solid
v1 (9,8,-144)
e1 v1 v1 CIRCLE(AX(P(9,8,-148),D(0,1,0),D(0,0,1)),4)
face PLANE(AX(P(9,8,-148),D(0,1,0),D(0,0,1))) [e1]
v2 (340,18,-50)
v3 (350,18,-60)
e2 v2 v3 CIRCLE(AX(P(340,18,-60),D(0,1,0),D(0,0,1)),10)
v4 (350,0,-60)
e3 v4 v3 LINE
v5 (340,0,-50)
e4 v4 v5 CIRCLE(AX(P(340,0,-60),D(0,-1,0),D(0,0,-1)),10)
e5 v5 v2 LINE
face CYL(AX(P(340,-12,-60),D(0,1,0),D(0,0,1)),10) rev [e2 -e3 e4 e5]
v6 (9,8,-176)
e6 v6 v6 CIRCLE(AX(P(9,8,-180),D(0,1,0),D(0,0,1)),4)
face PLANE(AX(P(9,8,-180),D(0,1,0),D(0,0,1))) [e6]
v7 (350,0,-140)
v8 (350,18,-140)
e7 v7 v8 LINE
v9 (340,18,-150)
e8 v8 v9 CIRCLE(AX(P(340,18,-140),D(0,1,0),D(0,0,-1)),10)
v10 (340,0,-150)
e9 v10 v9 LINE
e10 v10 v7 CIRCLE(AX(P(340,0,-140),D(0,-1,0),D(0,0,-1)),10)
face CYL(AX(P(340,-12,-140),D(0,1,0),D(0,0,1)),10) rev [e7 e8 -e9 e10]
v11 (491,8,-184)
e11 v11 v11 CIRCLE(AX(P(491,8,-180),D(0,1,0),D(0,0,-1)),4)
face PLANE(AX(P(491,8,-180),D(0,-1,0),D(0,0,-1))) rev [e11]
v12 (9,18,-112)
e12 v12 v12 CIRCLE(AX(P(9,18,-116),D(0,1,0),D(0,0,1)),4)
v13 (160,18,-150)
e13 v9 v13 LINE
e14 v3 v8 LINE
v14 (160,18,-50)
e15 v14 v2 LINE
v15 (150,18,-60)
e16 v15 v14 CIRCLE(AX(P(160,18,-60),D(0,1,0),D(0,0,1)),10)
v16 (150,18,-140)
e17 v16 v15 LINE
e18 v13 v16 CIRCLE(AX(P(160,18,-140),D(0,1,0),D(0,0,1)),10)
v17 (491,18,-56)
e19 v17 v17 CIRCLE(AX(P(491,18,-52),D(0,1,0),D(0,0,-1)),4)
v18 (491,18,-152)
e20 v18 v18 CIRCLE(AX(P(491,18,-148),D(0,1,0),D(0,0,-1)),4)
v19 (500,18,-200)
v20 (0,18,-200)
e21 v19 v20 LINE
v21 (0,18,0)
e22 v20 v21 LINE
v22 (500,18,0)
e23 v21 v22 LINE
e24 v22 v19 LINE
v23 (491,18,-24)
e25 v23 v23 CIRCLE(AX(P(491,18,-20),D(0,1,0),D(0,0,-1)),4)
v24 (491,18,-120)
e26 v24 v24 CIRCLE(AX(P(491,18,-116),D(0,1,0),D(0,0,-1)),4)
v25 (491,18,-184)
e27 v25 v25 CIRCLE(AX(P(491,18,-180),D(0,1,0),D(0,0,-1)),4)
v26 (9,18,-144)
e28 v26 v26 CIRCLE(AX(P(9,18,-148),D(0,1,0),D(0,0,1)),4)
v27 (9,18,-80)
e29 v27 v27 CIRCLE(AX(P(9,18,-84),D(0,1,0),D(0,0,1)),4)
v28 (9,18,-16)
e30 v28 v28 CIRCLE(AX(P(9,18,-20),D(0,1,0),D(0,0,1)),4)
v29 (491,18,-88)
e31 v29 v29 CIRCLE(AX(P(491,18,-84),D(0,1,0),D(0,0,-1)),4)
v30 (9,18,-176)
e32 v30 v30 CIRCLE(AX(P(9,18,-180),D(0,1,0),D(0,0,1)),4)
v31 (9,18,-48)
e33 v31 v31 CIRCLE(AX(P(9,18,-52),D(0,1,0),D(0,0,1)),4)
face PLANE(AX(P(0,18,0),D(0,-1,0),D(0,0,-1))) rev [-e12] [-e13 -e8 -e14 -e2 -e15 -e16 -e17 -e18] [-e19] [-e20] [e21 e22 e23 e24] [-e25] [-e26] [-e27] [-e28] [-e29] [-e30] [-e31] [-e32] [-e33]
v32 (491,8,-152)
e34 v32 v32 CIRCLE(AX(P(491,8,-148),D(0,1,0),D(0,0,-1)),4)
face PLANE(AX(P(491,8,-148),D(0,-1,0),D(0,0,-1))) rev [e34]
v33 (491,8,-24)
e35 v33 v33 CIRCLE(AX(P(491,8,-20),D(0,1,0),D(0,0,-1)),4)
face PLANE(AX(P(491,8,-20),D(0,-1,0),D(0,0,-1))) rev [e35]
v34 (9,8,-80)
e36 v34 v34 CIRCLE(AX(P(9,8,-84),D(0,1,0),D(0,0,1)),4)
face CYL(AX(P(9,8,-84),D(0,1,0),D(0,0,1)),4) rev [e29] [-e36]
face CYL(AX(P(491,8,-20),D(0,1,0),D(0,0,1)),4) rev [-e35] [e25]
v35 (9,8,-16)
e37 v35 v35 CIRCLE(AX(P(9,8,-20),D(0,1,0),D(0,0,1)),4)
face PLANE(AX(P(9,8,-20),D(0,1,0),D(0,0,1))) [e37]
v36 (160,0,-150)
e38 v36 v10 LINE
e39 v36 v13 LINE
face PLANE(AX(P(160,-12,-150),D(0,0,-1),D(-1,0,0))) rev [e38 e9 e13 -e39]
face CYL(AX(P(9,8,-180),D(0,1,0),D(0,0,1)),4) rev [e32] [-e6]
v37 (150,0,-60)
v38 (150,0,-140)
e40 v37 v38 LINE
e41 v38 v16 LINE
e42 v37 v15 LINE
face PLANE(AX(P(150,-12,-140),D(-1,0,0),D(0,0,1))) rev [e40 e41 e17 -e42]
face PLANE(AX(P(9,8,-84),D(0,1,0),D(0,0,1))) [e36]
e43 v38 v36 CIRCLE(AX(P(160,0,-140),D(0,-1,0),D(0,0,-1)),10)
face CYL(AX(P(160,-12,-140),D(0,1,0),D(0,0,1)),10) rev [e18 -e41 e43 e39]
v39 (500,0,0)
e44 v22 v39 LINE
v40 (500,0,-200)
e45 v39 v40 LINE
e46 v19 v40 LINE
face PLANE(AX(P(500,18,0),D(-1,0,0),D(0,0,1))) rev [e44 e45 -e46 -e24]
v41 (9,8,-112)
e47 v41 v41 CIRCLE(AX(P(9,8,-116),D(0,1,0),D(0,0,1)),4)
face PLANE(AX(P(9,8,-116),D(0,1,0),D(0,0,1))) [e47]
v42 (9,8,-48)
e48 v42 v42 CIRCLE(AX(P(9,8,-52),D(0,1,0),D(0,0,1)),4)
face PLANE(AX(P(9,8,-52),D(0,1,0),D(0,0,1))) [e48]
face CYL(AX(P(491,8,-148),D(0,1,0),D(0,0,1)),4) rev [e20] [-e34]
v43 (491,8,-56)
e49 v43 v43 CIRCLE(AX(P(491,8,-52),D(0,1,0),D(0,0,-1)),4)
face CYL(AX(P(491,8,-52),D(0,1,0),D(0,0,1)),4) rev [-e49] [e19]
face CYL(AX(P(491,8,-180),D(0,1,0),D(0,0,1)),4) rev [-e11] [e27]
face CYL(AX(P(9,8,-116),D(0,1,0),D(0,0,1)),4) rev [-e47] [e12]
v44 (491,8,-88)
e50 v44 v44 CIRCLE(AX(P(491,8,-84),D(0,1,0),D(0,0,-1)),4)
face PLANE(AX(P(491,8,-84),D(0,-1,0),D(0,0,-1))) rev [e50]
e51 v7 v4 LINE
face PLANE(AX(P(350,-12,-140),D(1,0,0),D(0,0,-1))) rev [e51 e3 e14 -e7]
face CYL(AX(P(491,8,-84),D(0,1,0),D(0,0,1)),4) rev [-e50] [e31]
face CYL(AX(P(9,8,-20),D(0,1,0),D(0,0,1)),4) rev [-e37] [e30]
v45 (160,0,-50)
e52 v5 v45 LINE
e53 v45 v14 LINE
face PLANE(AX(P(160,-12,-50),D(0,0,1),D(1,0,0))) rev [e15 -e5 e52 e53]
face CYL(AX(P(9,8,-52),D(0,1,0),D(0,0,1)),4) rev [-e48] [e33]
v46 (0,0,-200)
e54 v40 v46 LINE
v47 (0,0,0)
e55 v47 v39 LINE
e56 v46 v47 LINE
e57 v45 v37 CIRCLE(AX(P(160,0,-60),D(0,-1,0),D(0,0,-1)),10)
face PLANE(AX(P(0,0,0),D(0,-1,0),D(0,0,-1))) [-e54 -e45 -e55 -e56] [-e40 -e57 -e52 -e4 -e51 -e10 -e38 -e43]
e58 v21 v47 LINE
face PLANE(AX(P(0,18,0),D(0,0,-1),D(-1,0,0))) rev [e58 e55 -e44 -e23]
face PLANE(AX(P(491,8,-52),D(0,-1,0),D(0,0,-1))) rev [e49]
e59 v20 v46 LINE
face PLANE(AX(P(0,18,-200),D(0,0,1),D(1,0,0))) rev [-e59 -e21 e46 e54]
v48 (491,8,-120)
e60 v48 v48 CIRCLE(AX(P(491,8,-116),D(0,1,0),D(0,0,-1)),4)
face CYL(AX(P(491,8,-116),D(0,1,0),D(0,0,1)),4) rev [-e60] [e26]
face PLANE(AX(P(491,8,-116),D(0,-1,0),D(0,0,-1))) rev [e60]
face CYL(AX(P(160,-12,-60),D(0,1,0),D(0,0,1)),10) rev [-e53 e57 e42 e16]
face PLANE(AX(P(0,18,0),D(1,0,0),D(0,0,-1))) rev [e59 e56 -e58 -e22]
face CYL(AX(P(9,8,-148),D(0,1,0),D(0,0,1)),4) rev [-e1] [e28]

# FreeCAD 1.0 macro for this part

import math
import FreeCAD as App
import Part
import Sketcher
Q = App.Units.Quantity


def add_polygon(sketch, points):
    """Adds a closed chain of lines whose ends are joined by coincident constraints."""
    first, n = sketch.GeometryCount, len(points)
    for a, b in zip(points, points[1:] + points[:1]):
        sketch.addGeometry(Part.LineSegment(App.Vector(*a, 0), App.Vector(*b, 0)), False)
    for i in range(n):
        sketch.addConstraint(Sketcher.Constraint("Coincident", first + i, 2, first + (i + 1) % n, 1))

doc = App.newDocument("Part")
params = doc.addObject("Spreadsheet::Sheet", "Params")
for row, (alias, value) in enumerate([
    ("sketch1_width", "500 mm"),
    ("sketch1_height", "200 mm"),
    ("pad1_length", "18 mm"),
    ("sketch2_diameter", "8 mm"),
    ("pocket1_length", "10 mm"),
    ("sketch3_radius", "10 mm"),
    ("sketch3_width", "180 mm"),
    ("sketch3_height", "80 mm"),
    ("pocket2_length", "30 mm"),
], start=1):
    params.set(f"A{row}", alias)
    params.set(f"B{row}", "=" + value)
    params.setAlias(f"B{row}", alias)

body = doc.addObject("PartDesign::Body", "Body")

# Sketch on XZ plane
sketch1 = body.newObject("Sketcher::SketchObject", "Sketch")
sketch1.AttachmentSupport = (doc.getObject("XZ_Plane"), [""])
sketch1.MapMode = "FlatFace"
add_polygon(sketch1, [(0, -200), (0, 0), (500, 0), (500, -200)])  # lines 0-3
sketch1.addConstraint([
    Sketcher.Constraint("Vertical", 0),
    Sketcher.Constraint("Horizontal", 1),
    Sketcher.Constraint("Vertical", 2),
    Sketcher.Constraint("Horizontal", 3),
    Sketcher.Constraint("Coincident", 0, 2, -1, 1),
    Sketcher.Constraint("DistanceX", 1, 1, 1, 2, Q("500 mm")),
    Sketcher.Constraint("DistanceY", 0, 1, 0, 2, Q("200 mm")),
])
sketch1.setExpression("Constraints[9]", "Params.sketch1_width")
sketch1.setExpression("Constraints[10]", "Params.sketch1_height")
pad1 = body.newObject("PartDesign::Pad", "Pad")
pad1.Profile = sketch1
pad1.setExpression("Length", "Params.pad1_length")
pad1.Reversed = True

# Sketch on XZ plane
sketch2 = body.newObject("Sketcher::SketchObject", "Sketch001")
sketch2.AttachmentSupport = (doc.getObject("XZ_Plane"), [""])
sketch2.MapMode = "FlatFace"
sketch2.AttachmentOffset = App.Placement(App.Vector(0, 0, -18), App.Rotation())
sketch2.addGeometry([
    Part.Circle(App.Vector(9, -180, 0), App.Vector(0, 0, 1), 4),  # 0
    Part.Circle(App.Vector(9, -148, 0), App.Vector(0, 0, 1), 4),  # 1
    Part.Circle(App.Vector(9, -116, 0), App.Vector(0, 0, 1), 4),  # 2
    Part.Circle(App.Vector(9, -84, 0), App.Vector(0, 0, 1), 4),  # 3
    Part.Circle(App.Vector(9, -52, 0), App.Vector(0, 0, 1), 4),  # 4
    Part.Circle(App.Vector(9, -20, 0), App.Vector(0, 0, 1), 4),  # 5
    Part.Circle(App.Vector(491, -20, 0), App.Vector(0, 0, 1), 4),  # 6
    Part.Circle(App.Vector(491, -52, 0), App.Vector(0, 0, 1), 4),  # 7
    Part.Circle(App.Vector(491, -84, 0), App.Vector(0, 0, 1), 4),  # 8
    Part.Circle(App.Vector(491, -116, 0), App.Vector(0, 0, 1), 4),  # 9
    Part.Circle(App.Vector(491, -148, 0), App.Vector(0, 0, 1), 4),  # 10
    Part.Circle(App.Vector(491, -180, 0), App.Vector(0, 0, 1), 4),  # 11
], False)
sketch2.addConstraint([
    Sketcher.Constraint("Equal", 0, 1),
    Sketcher.Constraint("Equal", 1, 2),
    Sketcher.Constraint("Equal", 2, 3),
    Sketcher.Constraint("Equal", 3, 4),
    Sketcher.Constraint("Equal", 4, 5),
    Sketcher.Constraint("Equal", 5, 6),
    Sketcher.Constraint("Equal", 6, 7),
    Sketcher.Constraint("Equal", 7, 8),
    Sketcher.Constraint("Equal", 8, 9),
    Sketcher.Constraint("Equal", 9, 10),
    Sketcher.Constraint("Equal", 10, 11),
    Sketcher.Constraint("Horizontal", 5, 3, 6, 3),
    Sketcher.Constraint("Horizontal", 4, 3, 7, 3),
    Sketcher.Constraint("Horizontal", 3, 3, 8, 3),
    Sketcher.Constraint("Horizontal", 2, 3, 9, 3),
    Sketcher.Constraint("Horizontal", 1, 3, 10, 3),
    Sketcher.Constraint("Horizontal", 0, 3, 11, 3),
    Sketcher.Constraint("Vertical", 0, 3, 1, 3),
    Sketcher.Constraint("Vertical", 1, 3, 2, 3),
    Sketcher.Constraint("Vertical", 2, 3, 3, 3),
    Sketcher.Constraint("Vertical", 3, 3, 4, 3),
    Sketcher.Constraint("Vertical", 4, 3, 5, 3),
    Sketcher.Constraint("Vertical", 6, 3, 7, 3),
    Sketcher.Constraint("Vertical", 7, 3, 8, 3),
    Sketcher.Constraint("Vertical", 8, 3, 9, 3),
    Sketcher.Constraint("Vertical", 9, 3, 10, 3),
    Sketcher.Constraint("Vertical", 10, 3, 11, 3),
    Sketcher.Constraint("Diameter", 0, Q("8 mm")),
    Sketcher.Constraint("DistanceX", -1, 1, 0, 3, Q("9 mm")),
    Sketcher.Constraint("DistanceY", 0, 3, -1, 1, Q("180 mm")),
    Sketcher.Constraint("DistanceY", 1, 3, -1, 1, Q("148 mm")),
    Sketcher.Constraint("DistanceY", 2, 3, -1, 1, Q("116 mm")),
    Sketcher.Constraint("DistanceY", 3, 3, -1, 1, Q("84 mm")),
    Sketcher.Constraint("DistanceY", 4, 3, -1, 1, Q("52 mm")),
    Sketcher.Constraint("DistanceY", 5, 3, -1, 1, Q("20 mm")),
    Sketcher.Constraint("DistanceX", -1, 1, 6, 3, Q("491 mm")),
])
sketch2.setExpression("Constraints[27]", "Params.sketch2_diameter")
pocket1 = body.newObject("PartDesign::Pocket", "Pocket")
pocket1.Profile = sketch2
pocket1.setExpression("Length", "Params.pocket1_length")
pocket1.Reversed = True

# Sketch on XZ plane
sketch3 = body.newObject("Sketcher::SketchObject", "Sketch002")
sketch3.AttachmentSupport = (doc.getObject("XZ_Plane"), [""])
sketch3.MapMode = "FlatFace"
sketch3.AttachmentOffset = App.Placement(App.Vector(0, 0, -18), App.Rotation())
sketch3.addGeometry([
    Part.LineSegment(App.Vector(340, -150, 0), App.Vector(160, -150, 0)),  # 0
    Part.ArcOfCircle(Part.Circle(App.Vector(160, -140, 0), App.Vector(0, 0, 1), 10), math.radians(180), math.radians(270)),  # 1
    Part.LineSegment(App.Vector(150, -140, 0), App.Vector(150, -60, 0)),  # 2
    Part.ArcOfCircle(Part.Circle(App.Vector(160, -60, 0), App.Vector(0, 0, 1), 10), math.radians(90), math.radians(180)),  # 3
    Part.LineSegment(App.Vector(160, -50, 0), App.Vector(340, -50, 0)),  # 4
    Part.ArcOfCircle(Part.Circle(App.Vector(340, -60, 0), App.Vector(0, 0, 1), 10), math.radians(0), math.radians(90)),  # 5
    Part.LineSegment(App.Vector(350, -60, 0), App.Vector(350, -140, 0)),  # 6
    Part.ArcOfCircle(Part.Circle(App.Vector(340, -140, 0), App.Vector(0, 0, 1), 10), math.radians(-90), math.radians(0)),  # 7
], False)
sketch3.addConstraint([
    Sketcher.Constraint("Tangent", 0, 2, 1, 2),
    Sketcher.Constraint("Tangent", 1, 1, 2, 1),
    Sketcher.Constraint("Tangent", 2, 2, 3, 2),
    Sketcher.Constraint("Tangent", 3, 1, 4, 1),
    Sketcher.Constraint("Tangent", 4, 2, 5, 2),
    Sketcher.Constraint("Tangent", 5, 1, 6, 1),
    Sketcher.Constraint("Tangent", 6, 2, 7, 2),
    Sketcher.Constraint("Tangent", 7, 1, 0, 1),
    Sketcher.Constraint("Horizontal", 0),
    Sketcher.Constraint("Vertical", 2),
    Sketcher.Constraint("Horizontal", 4),
    Sketcher.Constraint("Vertical", 6),
    Sketcher.Constraint("Equal", 1, 3),
    Sketcher.Constraint("Equal", 3, 5),
    Sketcher.Constraint("Equal", 5, 7),
    Sketcher.Constraint("Radius", 1, Q("10 mm")),
    Sketcher.Constraint("DistanceX", 0, 2, 0, 1, Q("180 mm")),
    Sketcher.Constraint("DistanceY", 2, 1, 2, 2, Q("80 mm")),
    Sketcher.Constraint("DistanceX", -1, 1, 1, 3, Q("160 mm")),
    Sketcher.Constraint("DistanceY", 1, 3, -1, 1, Q("140 mm")),
])
sketch3.setExpression("Constraints[15]", "Params.sketch3_radius")
sketch3.setExpression("Constraints[16]", "Params.sketch3_width")
sketch3.setExpression("Constraints[17]", "Params.sketch3_height")
pocket2 = body.newObject("PartDesign::Pocket", "Pocket001")
pocket2.Profile = sketch3
pocket2.setExpression("Length", "Params.pocket2_length")
pocket2.Reversed = True

doc.recompute()
